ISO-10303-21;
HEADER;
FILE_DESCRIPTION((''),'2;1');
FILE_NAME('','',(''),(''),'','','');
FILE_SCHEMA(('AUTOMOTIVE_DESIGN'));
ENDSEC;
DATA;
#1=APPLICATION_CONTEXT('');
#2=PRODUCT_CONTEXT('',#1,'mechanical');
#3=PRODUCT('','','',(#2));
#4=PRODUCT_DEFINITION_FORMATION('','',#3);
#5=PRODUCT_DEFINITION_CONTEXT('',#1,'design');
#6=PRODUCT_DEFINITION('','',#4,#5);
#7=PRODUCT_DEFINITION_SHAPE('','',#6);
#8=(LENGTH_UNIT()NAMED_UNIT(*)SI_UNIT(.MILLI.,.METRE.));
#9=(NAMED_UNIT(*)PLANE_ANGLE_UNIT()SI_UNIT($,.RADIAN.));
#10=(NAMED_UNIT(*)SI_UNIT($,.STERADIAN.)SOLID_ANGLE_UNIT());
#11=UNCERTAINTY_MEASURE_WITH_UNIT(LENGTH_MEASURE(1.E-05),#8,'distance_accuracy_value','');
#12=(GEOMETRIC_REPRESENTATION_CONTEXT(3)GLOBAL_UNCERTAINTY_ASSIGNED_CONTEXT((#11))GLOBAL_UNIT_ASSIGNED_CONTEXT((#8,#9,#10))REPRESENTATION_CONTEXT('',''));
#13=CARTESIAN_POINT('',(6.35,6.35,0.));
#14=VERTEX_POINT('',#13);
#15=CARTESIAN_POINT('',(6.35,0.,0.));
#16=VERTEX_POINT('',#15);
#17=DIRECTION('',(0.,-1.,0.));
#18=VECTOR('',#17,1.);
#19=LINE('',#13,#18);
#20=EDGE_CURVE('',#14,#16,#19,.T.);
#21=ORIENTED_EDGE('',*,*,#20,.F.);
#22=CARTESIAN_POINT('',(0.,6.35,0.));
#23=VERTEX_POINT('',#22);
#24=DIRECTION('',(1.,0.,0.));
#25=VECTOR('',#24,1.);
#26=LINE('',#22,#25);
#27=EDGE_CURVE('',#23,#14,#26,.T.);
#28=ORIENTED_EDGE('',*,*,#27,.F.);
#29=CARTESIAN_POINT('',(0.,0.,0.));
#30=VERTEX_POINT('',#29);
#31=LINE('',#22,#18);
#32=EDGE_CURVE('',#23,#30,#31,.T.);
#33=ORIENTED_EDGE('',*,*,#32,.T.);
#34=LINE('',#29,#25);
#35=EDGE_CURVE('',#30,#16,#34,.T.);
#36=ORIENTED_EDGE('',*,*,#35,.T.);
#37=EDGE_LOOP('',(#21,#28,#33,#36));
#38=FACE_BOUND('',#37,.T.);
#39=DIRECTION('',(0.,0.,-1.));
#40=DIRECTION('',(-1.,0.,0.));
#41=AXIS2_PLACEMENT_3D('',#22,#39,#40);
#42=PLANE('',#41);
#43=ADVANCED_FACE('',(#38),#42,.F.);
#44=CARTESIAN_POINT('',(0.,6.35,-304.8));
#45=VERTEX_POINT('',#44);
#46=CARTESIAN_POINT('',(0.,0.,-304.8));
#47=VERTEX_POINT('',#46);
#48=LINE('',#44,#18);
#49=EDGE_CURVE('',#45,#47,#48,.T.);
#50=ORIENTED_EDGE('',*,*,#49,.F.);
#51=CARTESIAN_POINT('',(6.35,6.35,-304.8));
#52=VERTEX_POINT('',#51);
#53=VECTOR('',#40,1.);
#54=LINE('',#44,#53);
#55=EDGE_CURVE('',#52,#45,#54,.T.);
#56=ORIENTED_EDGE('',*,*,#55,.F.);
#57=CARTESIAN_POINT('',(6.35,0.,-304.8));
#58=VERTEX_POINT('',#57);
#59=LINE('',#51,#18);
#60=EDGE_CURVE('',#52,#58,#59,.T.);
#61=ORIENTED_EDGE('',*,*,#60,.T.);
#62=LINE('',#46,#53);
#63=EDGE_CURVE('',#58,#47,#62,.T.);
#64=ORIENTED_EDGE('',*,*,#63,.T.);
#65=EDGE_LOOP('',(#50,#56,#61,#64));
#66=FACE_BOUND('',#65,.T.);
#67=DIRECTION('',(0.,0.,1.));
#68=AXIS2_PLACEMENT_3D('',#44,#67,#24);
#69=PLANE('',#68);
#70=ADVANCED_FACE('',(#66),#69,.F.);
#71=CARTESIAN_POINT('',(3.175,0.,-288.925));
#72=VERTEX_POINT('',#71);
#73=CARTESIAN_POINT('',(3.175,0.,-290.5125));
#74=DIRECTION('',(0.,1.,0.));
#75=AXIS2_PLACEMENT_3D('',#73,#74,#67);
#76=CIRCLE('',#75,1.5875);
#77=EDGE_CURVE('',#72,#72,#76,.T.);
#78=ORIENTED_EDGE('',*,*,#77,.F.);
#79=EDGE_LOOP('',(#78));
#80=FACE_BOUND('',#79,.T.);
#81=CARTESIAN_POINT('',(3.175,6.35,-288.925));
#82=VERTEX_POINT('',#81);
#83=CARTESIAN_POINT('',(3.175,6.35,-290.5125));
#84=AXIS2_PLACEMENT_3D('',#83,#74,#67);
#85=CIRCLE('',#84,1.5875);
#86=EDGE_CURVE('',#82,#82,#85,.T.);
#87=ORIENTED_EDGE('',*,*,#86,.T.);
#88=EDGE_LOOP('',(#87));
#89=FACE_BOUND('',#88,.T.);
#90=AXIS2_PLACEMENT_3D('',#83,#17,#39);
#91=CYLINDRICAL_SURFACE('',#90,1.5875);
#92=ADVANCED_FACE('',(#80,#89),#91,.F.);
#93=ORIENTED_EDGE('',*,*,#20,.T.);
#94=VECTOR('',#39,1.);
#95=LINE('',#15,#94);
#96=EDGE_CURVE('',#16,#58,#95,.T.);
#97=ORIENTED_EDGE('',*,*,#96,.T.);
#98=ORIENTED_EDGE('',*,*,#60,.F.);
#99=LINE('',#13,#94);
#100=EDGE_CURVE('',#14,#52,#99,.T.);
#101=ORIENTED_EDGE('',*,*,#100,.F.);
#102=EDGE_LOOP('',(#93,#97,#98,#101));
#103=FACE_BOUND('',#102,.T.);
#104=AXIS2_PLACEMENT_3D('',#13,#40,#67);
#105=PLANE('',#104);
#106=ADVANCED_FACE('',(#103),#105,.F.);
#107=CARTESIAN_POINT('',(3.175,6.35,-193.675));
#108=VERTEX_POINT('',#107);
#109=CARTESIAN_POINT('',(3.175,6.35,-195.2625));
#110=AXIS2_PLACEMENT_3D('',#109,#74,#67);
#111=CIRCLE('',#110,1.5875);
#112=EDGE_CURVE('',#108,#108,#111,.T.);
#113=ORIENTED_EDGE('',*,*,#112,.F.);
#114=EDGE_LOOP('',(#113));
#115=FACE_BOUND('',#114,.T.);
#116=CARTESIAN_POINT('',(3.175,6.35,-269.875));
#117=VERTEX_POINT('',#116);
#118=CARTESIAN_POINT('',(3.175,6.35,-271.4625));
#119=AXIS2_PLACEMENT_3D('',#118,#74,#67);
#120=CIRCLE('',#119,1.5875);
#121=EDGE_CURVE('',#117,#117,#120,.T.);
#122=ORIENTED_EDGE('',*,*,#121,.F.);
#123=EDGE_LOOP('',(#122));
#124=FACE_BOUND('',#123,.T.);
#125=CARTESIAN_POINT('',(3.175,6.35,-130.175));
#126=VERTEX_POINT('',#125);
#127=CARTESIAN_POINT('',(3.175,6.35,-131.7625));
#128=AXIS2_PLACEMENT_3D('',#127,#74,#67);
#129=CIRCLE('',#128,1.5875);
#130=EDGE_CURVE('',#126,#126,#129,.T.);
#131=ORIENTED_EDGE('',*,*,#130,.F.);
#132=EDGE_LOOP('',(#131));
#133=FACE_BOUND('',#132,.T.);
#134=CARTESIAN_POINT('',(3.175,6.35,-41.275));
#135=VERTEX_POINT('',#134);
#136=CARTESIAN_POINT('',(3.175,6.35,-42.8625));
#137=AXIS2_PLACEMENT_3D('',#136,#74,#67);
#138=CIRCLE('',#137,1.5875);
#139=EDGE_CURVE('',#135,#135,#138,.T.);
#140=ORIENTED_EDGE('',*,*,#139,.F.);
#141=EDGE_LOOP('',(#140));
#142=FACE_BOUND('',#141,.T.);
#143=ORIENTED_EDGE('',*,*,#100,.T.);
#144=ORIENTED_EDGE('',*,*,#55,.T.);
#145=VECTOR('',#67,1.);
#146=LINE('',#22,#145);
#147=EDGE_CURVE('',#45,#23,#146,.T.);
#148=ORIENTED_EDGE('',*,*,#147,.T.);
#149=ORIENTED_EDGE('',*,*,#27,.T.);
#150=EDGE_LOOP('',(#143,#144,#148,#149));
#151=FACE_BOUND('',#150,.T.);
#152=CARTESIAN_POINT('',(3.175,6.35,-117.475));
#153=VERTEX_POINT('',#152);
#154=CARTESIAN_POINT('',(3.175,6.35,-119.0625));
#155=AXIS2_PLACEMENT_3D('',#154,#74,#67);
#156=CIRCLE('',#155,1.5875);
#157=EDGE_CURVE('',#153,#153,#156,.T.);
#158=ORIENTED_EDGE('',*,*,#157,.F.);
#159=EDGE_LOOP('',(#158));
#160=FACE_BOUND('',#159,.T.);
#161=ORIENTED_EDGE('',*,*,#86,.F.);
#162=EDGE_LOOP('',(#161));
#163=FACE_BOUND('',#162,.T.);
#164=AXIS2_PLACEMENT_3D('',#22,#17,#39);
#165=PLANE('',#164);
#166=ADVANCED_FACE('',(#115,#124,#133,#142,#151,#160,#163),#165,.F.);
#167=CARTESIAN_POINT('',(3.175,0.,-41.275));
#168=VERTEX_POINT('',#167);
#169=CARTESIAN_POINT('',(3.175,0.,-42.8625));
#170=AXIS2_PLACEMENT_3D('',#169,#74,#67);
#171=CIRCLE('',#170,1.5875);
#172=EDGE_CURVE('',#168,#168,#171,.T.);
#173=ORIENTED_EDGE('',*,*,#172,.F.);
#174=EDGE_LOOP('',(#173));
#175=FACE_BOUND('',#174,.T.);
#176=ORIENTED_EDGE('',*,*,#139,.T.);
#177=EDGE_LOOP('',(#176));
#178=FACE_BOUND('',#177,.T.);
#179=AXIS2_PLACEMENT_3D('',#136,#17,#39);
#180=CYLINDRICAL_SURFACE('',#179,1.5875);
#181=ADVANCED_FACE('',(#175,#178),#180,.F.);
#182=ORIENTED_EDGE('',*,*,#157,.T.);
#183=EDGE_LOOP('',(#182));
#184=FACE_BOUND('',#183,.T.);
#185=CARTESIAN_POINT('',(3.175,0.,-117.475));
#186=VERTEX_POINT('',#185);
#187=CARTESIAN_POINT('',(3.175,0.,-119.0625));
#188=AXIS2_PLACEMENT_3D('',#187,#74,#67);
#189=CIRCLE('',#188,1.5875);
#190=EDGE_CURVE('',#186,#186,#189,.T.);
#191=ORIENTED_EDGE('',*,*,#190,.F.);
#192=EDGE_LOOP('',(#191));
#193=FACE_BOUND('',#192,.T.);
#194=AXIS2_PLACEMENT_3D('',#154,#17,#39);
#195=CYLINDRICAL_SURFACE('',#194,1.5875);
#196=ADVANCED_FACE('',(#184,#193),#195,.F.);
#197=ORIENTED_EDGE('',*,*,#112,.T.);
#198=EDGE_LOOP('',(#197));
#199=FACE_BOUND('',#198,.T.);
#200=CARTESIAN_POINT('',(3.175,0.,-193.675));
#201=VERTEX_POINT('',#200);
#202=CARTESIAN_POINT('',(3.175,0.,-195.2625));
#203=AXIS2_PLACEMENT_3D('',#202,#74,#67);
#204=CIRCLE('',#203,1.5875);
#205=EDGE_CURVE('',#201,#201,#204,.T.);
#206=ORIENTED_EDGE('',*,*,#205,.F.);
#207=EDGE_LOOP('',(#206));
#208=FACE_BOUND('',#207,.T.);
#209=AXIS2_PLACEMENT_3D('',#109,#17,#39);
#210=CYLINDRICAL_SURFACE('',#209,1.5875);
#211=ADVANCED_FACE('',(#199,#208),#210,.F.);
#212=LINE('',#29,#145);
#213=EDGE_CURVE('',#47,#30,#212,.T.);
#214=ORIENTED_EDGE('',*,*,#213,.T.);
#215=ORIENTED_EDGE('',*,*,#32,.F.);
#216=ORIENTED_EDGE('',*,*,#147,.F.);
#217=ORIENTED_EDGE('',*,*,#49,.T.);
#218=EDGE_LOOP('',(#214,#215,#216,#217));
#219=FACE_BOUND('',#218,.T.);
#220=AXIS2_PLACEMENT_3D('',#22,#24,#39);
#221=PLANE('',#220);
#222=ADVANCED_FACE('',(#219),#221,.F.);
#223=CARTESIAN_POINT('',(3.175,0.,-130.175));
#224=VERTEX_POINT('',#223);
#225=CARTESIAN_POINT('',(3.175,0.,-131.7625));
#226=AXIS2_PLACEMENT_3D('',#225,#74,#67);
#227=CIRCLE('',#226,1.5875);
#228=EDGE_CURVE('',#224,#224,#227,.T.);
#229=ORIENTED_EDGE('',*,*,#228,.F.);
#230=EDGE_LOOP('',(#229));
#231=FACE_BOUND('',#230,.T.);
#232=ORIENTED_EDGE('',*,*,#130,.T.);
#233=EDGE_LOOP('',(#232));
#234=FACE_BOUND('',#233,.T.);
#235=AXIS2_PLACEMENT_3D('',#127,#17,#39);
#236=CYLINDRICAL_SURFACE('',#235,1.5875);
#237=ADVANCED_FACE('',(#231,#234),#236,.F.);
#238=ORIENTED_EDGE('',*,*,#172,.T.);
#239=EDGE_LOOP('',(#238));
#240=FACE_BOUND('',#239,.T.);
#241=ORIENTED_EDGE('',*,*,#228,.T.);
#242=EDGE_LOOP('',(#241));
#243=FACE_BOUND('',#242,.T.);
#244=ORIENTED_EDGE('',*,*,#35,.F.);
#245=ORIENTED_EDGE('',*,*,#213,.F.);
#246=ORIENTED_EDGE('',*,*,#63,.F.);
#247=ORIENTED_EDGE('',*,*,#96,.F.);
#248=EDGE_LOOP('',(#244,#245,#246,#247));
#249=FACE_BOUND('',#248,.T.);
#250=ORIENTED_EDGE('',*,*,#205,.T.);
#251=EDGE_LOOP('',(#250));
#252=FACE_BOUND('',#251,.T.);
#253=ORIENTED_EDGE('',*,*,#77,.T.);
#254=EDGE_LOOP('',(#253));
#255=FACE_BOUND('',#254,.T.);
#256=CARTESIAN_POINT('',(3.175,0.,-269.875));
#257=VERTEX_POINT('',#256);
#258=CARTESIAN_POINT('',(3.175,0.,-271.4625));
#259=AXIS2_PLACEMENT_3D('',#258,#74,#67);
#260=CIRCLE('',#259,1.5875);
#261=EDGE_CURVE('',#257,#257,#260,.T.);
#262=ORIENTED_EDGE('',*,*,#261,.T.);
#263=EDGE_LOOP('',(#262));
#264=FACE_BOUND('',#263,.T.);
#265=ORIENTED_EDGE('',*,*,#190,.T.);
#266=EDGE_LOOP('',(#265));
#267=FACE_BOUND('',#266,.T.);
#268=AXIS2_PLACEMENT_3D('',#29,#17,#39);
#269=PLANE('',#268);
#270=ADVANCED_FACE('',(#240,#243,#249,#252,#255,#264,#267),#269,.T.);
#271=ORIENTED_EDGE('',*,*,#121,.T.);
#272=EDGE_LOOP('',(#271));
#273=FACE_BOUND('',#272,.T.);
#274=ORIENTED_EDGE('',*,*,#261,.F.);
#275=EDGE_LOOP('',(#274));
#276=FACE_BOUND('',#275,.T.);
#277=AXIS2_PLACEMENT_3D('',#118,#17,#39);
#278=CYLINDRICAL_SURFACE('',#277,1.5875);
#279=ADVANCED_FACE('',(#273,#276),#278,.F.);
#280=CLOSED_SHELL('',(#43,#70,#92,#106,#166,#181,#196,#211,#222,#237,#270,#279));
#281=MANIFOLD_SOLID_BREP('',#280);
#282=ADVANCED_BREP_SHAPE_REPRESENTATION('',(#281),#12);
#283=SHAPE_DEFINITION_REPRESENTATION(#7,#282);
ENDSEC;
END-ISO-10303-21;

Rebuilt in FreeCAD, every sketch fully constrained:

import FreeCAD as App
import Part
import Sketcher
from FreeCAD import Vector
Q = App.Units.Quantity


def add_polygon(sketch, points):
    """Adds a closed chain of lines whose ends are joined by coincident constraints."""
    first, n = sketch.GeometryCount, len(points)
    for a, b in zip(points, points[1:] + points[:1]):
        sketch.addGeometry(Part.LineSegment(App.Vector(*a, 0), App.Vector(*b, 0)), False)
    for i in range(n):
        sketch.addConstraint(Sketcher.Constraint("Coincident", first + i, 2, first + (i + 1) % n, 1))

doc = App.newDocument("Part")
body = doc.addObject("PartDesign::Body", "Body")

sketch1 = body.newObject("Sketcher::SketchObject", "Sketch")
sketch1.AttachmentSupport = (doc.getObject("XZ_Plane"), [""])
sketch1.MapMode = "FlatFace"
add_polygon(sketch1, [(0, -304.8), (0, 0), (6.35, 0), (6.35, -304.8)])
sketch1.addGeometry(Part.Circle(Vector(3.175, -42.8625, 0), Vector(0, 0, 1), 1.5875), False)
sketch1.addGeometry(Part.Circle(Vector(3.175, -119.0625, 0), Vector(0, 0, 1), 1.5875), False)
sketch1.addGeometry(Part.Circle(Vector(3.175, -131.7625, 0), Vector(0, 0, 1), 1.5875), False)
sketch1.addGeometry(Part.Circle(Vector(3.175, -195.2625, 0), Vector(0, 0, 1), 1.5875), False)
sketch1.addGeometry(Part.Circle(Vector(3.175, -271.4625, 0), Vector(0, 0, 1), 1.5875), False)
sketch1.addGeometry(Part.Circle(Vector(3.175, -290.5125, 0), Vector(0, 0, 1), 1.5875), False)
sketch1.addConstraint([
    Sketcher.Constraint("Vertical", 0),
    Sketcher.Constraint("Horizontal", 1),
    Sketcher.Constraint("Vertical", 2),
    Sketcher.Constraint("Horizontal", 3),
    Sketcher.Constraint("Coincident", 0, 2, -1, 1),
    Sketcher.Constraint("Equal", 4, 5),
    Sketcher.Constraint("Equal", 5, 6),
    Sketcher.Constraint("Equal", 6, 7),
    Sketcher.Constraint("Equal", 7, 8),
    Sketcher.Constraint("Equal", 8, 9),
    Sketcher.Constraint("Vertical", 4, 3, 5, 3),
    Sketcher.Constraint("Vertical", 5, 3, 6, 3),
    Sketcher.Constraint("Vertical", 6, 3, 7, 3),
    Sketcher.Constraint("Vertical", 7, 3, 8, 3),
    Sketcher.Constraint("Vertical", 8, 3, 9, 3),
    Sketcher.Constraint("DistanceY", 0, 1, 0, 2, Q("12 in")),
    Sketcher.Constraint("Diameter", 4, Q("0.125 in")),
    Sketcher.Constraint("DistanceY", 5, 3, 4, 3, Q("3 in")),
    Sketcher.Constraint("DistanceY", 7, 3, 5, 3, Q("3 in")),
    Sketcher.Constraint("DistanceY", 8, 3, 7, 3, Q("3 in")),
    Sketcher.Constraint("DistanceX", 1, 1, 1, 2, Q("0.25 in")),
    Sketcher.Constraint("DistanceY", 6, 3, 5, 3, Q("0.5 in")),
    Sketcher.Constraint("DistanceY", 9, 3, 8, 3, Q("0.75 in")),
    Sketcher.Constraint("DistanceX", -1, 1, 4, 3, Q("0.125 in")),
    Sketcher.Constraint("DistanceY", 4, 3, -1, 1, Q("1.6875 in")),
])
pad1 = body.newObject("PartDesign::Pad", "Pad")
pad1.Profile = sketch1
pad1.Length = Q("0.25 in")
pad1.Reversed = True

doc.recompute()
